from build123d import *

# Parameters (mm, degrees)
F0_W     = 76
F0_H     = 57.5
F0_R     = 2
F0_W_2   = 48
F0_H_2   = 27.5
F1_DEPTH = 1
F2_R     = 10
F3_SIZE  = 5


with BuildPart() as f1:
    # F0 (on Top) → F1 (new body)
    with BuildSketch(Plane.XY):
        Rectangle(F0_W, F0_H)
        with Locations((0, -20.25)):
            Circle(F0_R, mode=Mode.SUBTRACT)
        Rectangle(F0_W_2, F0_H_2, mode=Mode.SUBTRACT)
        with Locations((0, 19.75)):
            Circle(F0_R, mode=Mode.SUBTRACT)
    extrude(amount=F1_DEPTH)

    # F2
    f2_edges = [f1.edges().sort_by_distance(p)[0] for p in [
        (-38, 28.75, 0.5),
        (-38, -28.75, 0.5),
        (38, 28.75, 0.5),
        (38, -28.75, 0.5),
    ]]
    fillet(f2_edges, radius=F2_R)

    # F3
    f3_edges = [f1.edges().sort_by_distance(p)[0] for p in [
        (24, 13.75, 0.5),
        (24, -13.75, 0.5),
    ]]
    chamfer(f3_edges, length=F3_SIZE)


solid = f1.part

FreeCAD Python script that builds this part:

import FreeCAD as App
import Part
import Sketcher
Q = App.Units.Quantity


def edges_at(feature, points):
    """Names of the edges that pass closest to the given points."""
    edges = feature.Shape.Edges
    near = lambda p: min(range(len(edges)), key=lambda i: edges[i].distToShape(Part.Vertex(*p))[0])
    return sorted({f"Edge{near(p) + 1}" for p in points})

doc = App.newDocument("Part")
body = doc.addObject("PartDesign::Body", "Body")

sketch1 = doc.addObject("Sketcher::SketchObject", "Sketch")
body.addObject(sketch1)
sketch1.AttachmentSupport = (doc.XY_Plane, [""])
sketch1.MapMode = "FlatFace"
sketch1.addGeometry(Part.LineSegment(App.Vector(-38, 28.8, 0), App.Vector(-38, -28.8, 0)), False)
sketch1.addGeometry(Part.LineSegment(App.Vector(-38, -28.8, 0), App.Vector(38, -28.8, 0)), False)
sketch1.addGeometry(Part.LineSegment(App.Vector(38, -28.8, 0), App.Vector(38, 28.8, 0)), False)
sketch1.addGeometry(Part.LineSegment(App.Vector(38, 28.8, 0), App.Vector(-38, 28.8, 0)), False)
sketch1.addGeometry(Part.Circle(App.Vector(0, -20.2, 0), App.Vector(0, 0, 1), 2), False)
sketch1.addGeometry(Part.LineSegment(App.Vector(24, -13.8, 0), App.Vector(-24, -13.8, 0)), False)
sketch1.addGeometry(Part.LineSegment(App.Vector(-24, -13.8, 0), App.Vector(-24, 13.8, 0)), False)
sketch1.addGeometry(Part.LineSegment(App.Vector(-24, 13.8, 0), App.Vector(24, 13.8, 0)), False)
sketch1.addGeometry(Part.LineSegment(App.Vector(24, 13.8, 0), App.Vector(24, -13.8, 0)), False)
sketch1.addGeometry(Part.Circle(App.Vector(0, 19.8, 0), App.Vector(0, 0, 1), 2), False)
sketch1.addConstraint(Sketcher.Constraint("Coincident", 0, 2, 1, 1))
sketch1.addConstraint(Sketcher.Constraint("Coincident", 1, 2, 2, 1))
sketch1.addConstraint(Sketcher.Constraint("Coincident", 2, 2, 3, 1))
sketch1.addConstraint(Sketcher.Constraint("Coincident", 3, 2, 0, 1))
sketch1.addConstraint(Sketcher.Constraint("Coincident", 5, 2, 6, 1))
sketch1.addConstraint(Sketcher.Constraint("Coincident", 6, 2, 7, 1))
sketch1.addConstraint(Sketcher.Constraint("Coincident", 7, 2, 8, 1))
sketch1.addConstraint(Sketcher.Constraint("Coincident", 8, 2, 5, 1))
sketch1.addConstraint(Sketcher.Constraint("Vertical", 0))
sketch1.addConstraint(Sketcher.Constraint("Horizontal", 1))
sketch1.addConstraint(Sketcher.Constraint("Vertical", 2))
sketch1.addConstraint(Sketcher.Constraint("Horizontal", 3))
sketch1.addConstraint(Sketcher.Constraint("Horizontal", 5))
sketch1.addConstraint(Sketcher.Constraint("Vertical", 6))
sketch1.addConstraint(Sketcher.Constraint("Horizontal", 7))
sketch1.addConstraint(Sketcher.Constraint("Vertical", 8))
sketch1.addConstraint(Sketcher.Constraint("Equal", 4, 9))
sketch1.addConstraint(Sketcher.Constraint("Symmetric", 0, 2, 2, 2, -1, 1))
sketch1.addConstraint(Sketcher.Constraint("Symmetric", 5, 2, 7, 2, -1, 1))
sketch1.addConstraint(Sketcher.Constraint("PointOnObject", 4, 3, -2))
sketch1.addConstraint(Sketcher.Constraint("PointOnObject", 9, 3, -2))
sketch1.addConstraint(Sketcher.Constraint("Diameter", 4, Q("4 mm")))
sketch1.addConstraint(Sketcher.Constraint("DistanceX", 1, 1, 1, 2, Q("76 mm")))
sketch1.addConstraint(Sketcher.Constraint("DistanceX", 5, 2, 5, 1, Q("48 mm")))
sketch1.addConstraint(Sketcher.Constraint("DistanceY", 0, 2, 0, 1, Q("57.5 mm")))
sketch1.addConstraint(Sketcher.Constraint("DistanceY", 6, 1, 6, 2, Q("27.5 mm")))
sketch1.addConstraint(Sketcher.Constraint("DistanceY", 4, 3, 9, 3, Q("40 mm")))
sketch1.addConstraint(Sketcher.Constraint("DistanceY", 9, 3, 2, 2, Q("9 mm")))
pad1 = doc.addObject("PartDesign::Pad", "Pad")
body.addObject(pad1)
pad1.Profile = sketch1
pad1.Length = 1
doc.recompute()

fillet = doc.addObject("PartDesign::Fillet", "Fillet")
body.addObject(fillet)
fillet.Base = (pad1, edges_at(pad1, [
    (-38, 28.75, 0.5),
    (-38, -28.75, 0.5),
    (38, 28.75, 0.5),
    (38, -28.75, 0.5),
]))
fillet.Radius = 10
doc.recompute()

chamfer = doc.addObject("PartDesign::Chamfer", "Chamfer")
body.addObject(chamfer)
chamfer.Base = (fillet, edges_at(fillet, [(24, 13.75, 0.5), (24, -13.75, 0.5)]))
chamfer.Size = 5

doc.recompute()
